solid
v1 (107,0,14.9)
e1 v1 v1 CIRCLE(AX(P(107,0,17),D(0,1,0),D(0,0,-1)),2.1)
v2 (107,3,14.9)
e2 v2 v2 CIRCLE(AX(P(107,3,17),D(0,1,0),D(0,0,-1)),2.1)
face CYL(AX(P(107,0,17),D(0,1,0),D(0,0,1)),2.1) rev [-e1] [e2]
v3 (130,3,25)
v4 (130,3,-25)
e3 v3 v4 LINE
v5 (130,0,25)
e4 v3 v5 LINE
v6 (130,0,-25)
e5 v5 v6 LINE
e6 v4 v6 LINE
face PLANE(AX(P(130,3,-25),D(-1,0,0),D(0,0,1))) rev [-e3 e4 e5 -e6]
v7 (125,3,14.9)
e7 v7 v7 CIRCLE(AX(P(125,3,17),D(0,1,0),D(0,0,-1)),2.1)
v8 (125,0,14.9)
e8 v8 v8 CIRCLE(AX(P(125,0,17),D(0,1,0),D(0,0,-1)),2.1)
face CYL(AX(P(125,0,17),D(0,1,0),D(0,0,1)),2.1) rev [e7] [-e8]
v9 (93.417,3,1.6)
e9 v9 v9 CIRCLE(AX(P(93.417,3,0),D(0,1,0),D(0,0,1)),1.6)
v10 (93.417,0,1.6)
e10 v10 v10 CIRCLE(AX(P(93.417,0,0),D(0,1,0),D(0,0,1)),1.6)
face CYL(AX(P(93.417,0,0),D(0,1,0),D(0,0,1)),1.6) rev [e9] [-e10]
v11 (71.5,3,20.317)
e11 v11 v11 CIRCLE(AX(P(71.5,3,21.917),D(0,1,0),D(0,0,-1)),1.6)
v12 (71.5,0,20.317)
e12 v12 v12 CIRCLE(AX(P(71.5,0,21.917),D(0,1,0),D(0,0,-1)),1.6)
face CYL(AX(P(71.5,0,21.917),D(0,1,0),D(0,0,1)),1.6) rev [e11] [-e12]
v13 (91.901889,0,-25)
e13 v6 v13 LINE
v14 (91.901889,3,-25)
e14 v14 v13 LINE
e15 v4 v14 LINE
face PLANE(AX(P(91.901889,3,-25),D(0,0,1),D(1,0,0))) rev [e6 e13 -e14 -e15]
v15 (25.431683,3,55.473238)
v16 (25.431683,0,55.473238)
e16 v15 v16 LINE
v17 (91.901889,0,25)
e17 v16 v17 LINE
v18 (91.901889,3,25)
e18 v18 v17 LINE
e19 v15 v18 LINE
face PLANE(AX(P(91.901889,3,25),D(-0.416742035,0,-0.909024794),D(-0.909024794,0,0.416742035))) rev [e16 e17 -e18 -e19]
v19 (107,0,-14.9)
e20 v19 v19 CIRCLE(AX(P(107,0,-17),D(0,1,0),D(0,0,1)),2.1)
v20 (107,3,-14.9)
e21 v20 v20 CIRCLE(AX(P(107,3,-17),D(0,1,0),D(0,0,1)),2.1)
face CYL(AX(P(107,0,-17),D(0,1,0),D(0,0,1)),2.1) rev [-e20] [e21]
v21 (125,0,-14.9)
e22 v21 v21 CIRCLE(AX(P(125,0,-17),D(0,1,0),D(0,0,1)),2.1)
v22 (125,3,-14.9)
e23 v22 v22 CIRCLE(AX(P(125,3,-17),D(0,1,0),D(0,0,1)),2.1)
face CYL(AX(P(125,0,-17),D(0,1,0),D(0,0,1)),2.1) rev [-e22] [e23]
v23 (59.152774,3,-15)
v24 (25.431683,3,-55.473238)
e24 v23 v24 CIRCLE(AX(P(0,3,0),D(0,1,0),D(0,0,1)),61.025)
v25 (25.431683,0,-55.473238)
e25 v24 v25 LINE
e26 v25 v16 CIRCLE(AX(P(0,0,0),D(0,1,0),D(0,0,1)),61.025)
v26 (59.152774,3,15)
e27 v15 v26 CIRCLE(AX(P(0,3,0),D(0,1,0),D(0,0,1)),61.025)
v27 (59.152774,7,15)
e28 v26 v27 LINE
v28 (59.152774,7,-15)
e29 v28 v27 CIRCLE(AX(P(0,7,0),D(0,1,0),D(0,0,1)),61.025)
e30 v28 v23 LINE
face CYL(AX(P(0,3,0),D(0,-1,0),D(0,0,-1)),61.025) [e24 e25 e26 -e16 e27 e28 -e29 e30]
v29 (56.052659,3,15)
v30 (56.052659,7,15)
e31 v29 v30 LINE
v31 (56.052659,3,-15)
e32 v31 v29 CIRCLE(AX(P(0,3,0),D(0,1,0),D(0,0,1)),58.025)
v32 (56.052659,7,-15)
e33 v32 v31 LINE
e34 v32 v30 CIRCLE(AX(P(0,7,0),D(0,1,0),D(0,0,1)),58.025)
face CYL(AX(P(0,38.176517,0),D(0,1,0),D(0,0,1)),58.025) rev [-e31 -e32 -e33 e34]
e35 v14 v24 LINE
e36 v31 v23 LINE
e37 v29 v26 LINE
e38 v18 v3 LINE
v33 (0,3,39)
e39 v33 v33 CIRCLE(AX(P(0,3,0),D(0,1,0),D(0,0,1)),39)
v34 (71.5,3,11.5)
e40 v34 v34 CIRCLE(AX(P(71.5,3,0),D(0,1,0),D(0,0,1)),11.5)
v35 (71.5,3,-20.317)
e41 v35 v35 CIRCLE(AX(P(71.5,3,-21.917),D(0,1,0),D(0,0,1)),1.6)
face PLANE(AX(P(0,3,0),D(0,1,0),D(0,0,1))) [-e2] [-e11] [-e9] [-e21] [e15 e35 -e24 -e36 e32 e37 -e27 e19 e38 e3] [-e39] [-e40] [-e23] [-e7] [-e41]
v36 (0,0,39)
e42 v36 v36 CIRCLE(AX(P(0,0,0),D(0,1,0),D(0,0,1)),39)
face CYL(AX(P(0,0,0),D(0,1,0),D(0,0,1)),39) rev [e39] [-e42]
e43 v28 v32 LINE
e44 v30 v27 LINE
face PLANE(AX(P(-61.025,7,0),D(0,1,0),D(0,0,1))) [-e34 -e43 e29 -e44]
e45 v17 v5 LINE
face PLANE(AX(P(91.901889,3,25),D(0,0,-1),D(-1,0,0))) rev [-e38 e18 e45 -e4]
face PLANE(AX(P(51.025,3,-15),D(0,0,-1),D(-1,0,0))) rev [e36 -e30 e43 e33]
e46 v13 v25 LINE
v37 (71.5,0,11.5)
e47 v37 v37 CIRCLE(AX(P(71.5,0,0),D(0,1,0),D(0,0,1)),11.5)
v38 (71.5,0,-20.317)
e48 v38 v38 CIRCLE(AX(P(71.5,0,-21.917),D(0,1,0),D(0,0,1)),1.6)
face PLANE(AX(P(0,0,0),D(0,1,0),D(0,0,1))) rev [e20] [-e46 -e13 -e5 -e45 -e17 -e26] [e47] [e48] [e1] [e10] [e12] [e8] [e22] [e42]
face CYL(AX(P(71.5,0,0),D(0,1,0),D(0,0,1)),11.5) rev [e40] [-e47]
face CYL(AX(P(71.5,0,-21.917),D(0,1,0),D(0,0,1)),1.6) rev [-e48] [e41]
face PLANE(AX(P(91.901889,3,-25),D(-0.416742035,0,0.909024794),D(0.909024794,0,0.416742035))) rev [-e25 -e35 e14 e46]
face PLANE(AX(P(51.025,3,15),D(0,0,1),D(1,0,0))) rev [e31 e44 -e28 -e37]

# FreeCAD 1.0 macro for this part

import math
import FreeCAD as App
import Part
import Sketcher

V = App.Vector
Q = App.Units.Quantity


def add_polygon(sketch, points):
    """Adds a closed chain of lines whose ends are joined by coincident constraints."""
    first, n = sketch.GeometryCount, len(points)
    for a, b in zip(points, points[1:] + points[:1]):
        sketch.addGeometry(Part.LineSegment(App.Vector(*a, 0), App.Vector(*b, 0)), False)
    for i in range(n):
        sketch.addConstraint(Sketcher.Constraint("Coincident", first + i, 2, first + (i + 1) % n, 1))

doc = App.newDocument("Part")
body = doc.addObject("PartDesign::Body", "Body")

# Sketch on XZ plane
sketch1 = body.newObject("Sketcher::SketchObject", "Sketch")
sketch1.AttachmentSupport = (doc.getObject("XZ_Plane"), [""])
sketch1.MapMode = "FlatFace"
sketch1.addGeometry(Part.LineSegment(V(91.901889, -25, 0), V(25.431683, -55.473238, 0)), False)
sketch1.addGeometry(Part.ArcOfCircle(Part.Circle(V(0, 0, 0), V(0, 0, 1), 61.025), math.radians(65.370931), math.radians(294.629069)), False)
sketch1.addGeometry(Part.LineSegment(V(25.431683, 55.473238, 0), V(91.901889, 25, 0)), False)
sketch1.addGeometry(Part.LineSegment(V(91.901889, 25, 0), V(130, 25, 0)), False)
sketch1.addGeometry(Part.LineSegment(V(130, 25, 0), V(130, -25, 0)), False)
sketch1.addGeometry(Part.LineSegment(V(130, -25, 0), V(91.901889, -25, 0)), False)
sketch1.addConstraint(Sketcher.Constraint("Tangent", 0, 2, 1, 2))
sketch1.addConstraint(Sketcher.Constraint("Tangent", 1, 1, 2, 1))
sketch1.addConstraint(Sketcher.Constraint("Coincident", 2, 2, 3, 1))
sketch1.addConstraint(Sketcher.Constraint("Coincident", 3, 2, 4, 1))
sketch1.addConstraint(Sketcher.Constraint("Coincident", 4, 2, 5, 1))
sketch1.addConstraint(Sketcher.Constraint("Coincident", 5, 2, 0, 1))
sketch1.addConstraint(Sketcher.Constraint("Horizontal", 3))
sketch1.addConstraint(Sketcher.Constraint("Vertical", 4))
sketch1.addConstraint(Sketcher.Constraint("Horizontal", 5))
sketch1.addConstraint(Sketcher.Constraint("Coincident", 1, 3, -1, 1))
sketch1.addConstraint(Sketcher.Constraint("Symmetric", 2, 2, 5, 2, -1))
sketch1.addConstraint(Sketcher.Constraint("DistanceY", 4, 2, 4, 1, Q("50 mm")))
sketch1.addConstraint(Sketcher.Constraint("DistanceX", -1, 1, 3, 2, Q("130 mm")))
sketch1.addConstraint(Sketcher.Constraint("Radius", 1, Q("61.025 mm")))
sketch1.addConstraint(Sketcher.Constraint("DistanceX", 3, 1, 3, 2, Q("38.098111 mm")))
pad1 = body.newObject("PartDesign::Pad", "Pad")
pad1.Profile = sketch1
pad1.Length = 3
pad1.Reversed = True

# Sketch on XZ plane
sketch2 = body.newObject("Sketcher::SketchObject", "Sketch001")
sketch2.AttachmentSupport = (doc.getObject("XZ_Plane"), [""])
sketch2.MapMode = "FlatFace"
sketch2.AttachmentOffset = App.Placement(V(0, 0, -3), App.Rotation())
sketch2.addGeometry(Part.Circle(V(71.5, 0, 0), V(0, 0, 1), 11.5), False)
sketch2.addGeometry(Part.Circle(V(0, 0, 0), V(0, 0, 1), 39), False)
sketch2.addGeometry(Part.Circle(V(71.5, -21.917, 0), V(0, 0, 1), 1.6), False)
sketch2.addGeometry(Part.Circle(V(93.417, 0, 0), V(0, 0, 1), 1.6), False)
sketch2.addGeometry(Part.Circle(V(71.5, 21.917, 0), V(0, 0, 1), 1.6), False)
sketch2.addGeometry(Part.Circle(V(125, -17, 0), V(0, 0, 1), 2.1), False)
sketch2.addGeometry(Part.Circle(V(107, -17, 0), V(0, 0, 1), 2.1), False)
sketch2.addGeometry(Part.Circle(V(125, 17, 0), V(0, 0, 1), 2.1), False)
sketch2.addGeometry(Part.Circle(V(107, 17, 0), V(0, 0, 1), 2.1), False)
sketch2.addConstraint(Sketcher.Constraint("Coincident", 1, 3, -1, 1))
sketch2.addConstraint(Sketcher.Constraint("Equal", 2, 3))
sketch2.addConstraint(Sketcher.Constraint("Equal", 3, 4))
sketch2.addConstraint(Sketcher.Constraint("Equal", 5, 6))
sketch2.addConstraint(Sketcher.Constraint("Equal", 6, 7))
sketch2.addConstraint(Sketcher.Constraint("Equal", 7, 8))
sketch2.addConstraint(Sketcher.Constraint("Symmetric", 2, 3, 4, 3, -1))
sketch2.addConstraint(Sketcher.Constraint("Symmetric", 5, 3, 7, 3, -1))
sketch2.addConstraint(Sketcher.Constraint("Symmetric", 6, 3, 8, 3, -1))
sketch2.addConstraint(Sketcher.Constraint("PointOnObject", 0, 3, -1))
sketch2.addConstraint(Sketcher.Constraint("PointOnObject", 3, 3, -1))
sketch2.addConstraint(Sketcher.Constraint("Horizontal", 5, 3, 6, 3))
sketch2.addConstraint(Sketcher.Constraint("Vertical", 0, 3, 2, 3))
sketch2.addConstraint(Sketcher.Constraint("Diameter", 0, Q("23 mm")))
sketch2.addConstraint(Sketcher.Constraint("Diameter", 1, Q("78 mm")))
sketch2.addConstraint(Sketcher.Constraint("Diameter", 2, Q("3.2 mm")))
sketch2.addConstraint(Sketcher.Constraint("Diameter", 5, Q("4.2 mm")))
sketch2.addConstraint(Sketcher.Constraint("DistanceX", -1, 1, 5, 3, Q("125 mm")))
sketch2.addConstraint(Sketcher.Constraint("DistanceY", 5, 3, -1, 1, Q("17 mm")))
sketch2.addConstraint(Sketcher.Constraint("DistanceX", -1, 1, 6, 3, Q("107 mm")))
sketch2.addConstraint(Sketcher.Constraint("DistanceX", -1, 1, 0, 3, Q("71.5 mm")))
sketch2.addConstraint(Sketcher.Constraint("DistanceY", 2, 3, -1, 1, Q("21.917 mm")))
sketch2.addConstraint(Sketcher.Constraint("DistanceX", -1, 1, 3, 3, Q("93.417 mm")))
pocket1 = body.newObject("PartDesign::Pocket", "Pocket")
pocket1.Profile = sketch2
pocket1.Type = "ThroughAll"
pocket1.Reversed = True

# Sketch on XY plane
sketch3 = body.newObject("Sketcher::SketchObject", "Sketch002")
sketch3.AttachmentSupport = (doc.getObject("XY_Plane"), [""])
sketch3.MapMode = "FlatFace"
add_polygon(sketch3, [(-61.025, 7), (-61.025, 3), (-58.025, 3), (-58.025, 7)])  # lines 0-3
sketch3.addConstraint(Sketcher.Constraint("Vertical", 0))
sketch3.addConstraint(Sketcher.Constraint("Horizontal", 1))
sketch3.addConstraint(Sketcher.Constraint("Vertical", 2))
sketch3.addConstraint(Sketcher.Constraint("Horizontal", 3))
sketch3.addConstraint(Sketcher.Constraint("DistanceX", 1, 1, 1, 2, Q("3 mm")))
sketch3.addConstraint(Sketcher.Constraint("DistanceY", 0, 2, 0, 1, Q("4 mm")))
sketch3.addConstraint(Sketcher.Constraint("DistanceY", -1, 1, 0, 2, Q("3 mm")))
sketch3.addConstraint(Sketcher.Constraint("DistanceX", 0, 2, -1, 1, Q("61.025 mm")))
revolution = body.newObject("PartDesign::Revolution", "Revolution")
revolution.Profile = sketch3
revolution.ReferenceAxis = (sketch3, ["V_Axis"])
revolution.Angle = 360

# Sketch on YZ plane
sketch4 = body.newObject("Sketcher::SketchObject", "Sketch003")
sketch4.AttachmentSupport = (doc.getObject("YZ_Plane"), [""])
sketch4.MapMode = "FlatFace"
sketch4.AttachmentOffset = App.Placement(V(0, 0, 61.025), App.Rotation())
add_polygon(sketch4, [(13, 15), (3, 15), (3, -15), (13, -15)])  # lines 0-3
sketch4.addConstraint(Sketcher.Constraint("Horizontal", 0))
sketch4.addConstraint(Sketcher.Constraint("Vertical", 1))
sketch4.addConstraint(Sketcher.Constraint("Horizontal", 2))
sketch4.addConstraint(Sketcher.Constraint("Vertical", 3))
sketch4.addConstraint(Sketcher.Constraint("DistanceX", 0, 2, 0, 1, Q("10 mm")))
sketch4.addConstraint(Sketcher.Constraint("DistanceY", 1, 2, 1, 1, Q("30 mm")))
sketch4.addConstraint(Sketcher.Constraint("DistanceX", -1, 1, 0, 2, Q("3 mm")))
sketch4.addConstraint(Sketcher.Constraint("DistanceY", -1, 1, 0, 2, Q("15 mm")))
pocket2 = body.newObject("PartDesign::Pocket", "Pocket001")
pocket2.Profile = sketch4
pocket2.Length = 10

doc.recompute()
